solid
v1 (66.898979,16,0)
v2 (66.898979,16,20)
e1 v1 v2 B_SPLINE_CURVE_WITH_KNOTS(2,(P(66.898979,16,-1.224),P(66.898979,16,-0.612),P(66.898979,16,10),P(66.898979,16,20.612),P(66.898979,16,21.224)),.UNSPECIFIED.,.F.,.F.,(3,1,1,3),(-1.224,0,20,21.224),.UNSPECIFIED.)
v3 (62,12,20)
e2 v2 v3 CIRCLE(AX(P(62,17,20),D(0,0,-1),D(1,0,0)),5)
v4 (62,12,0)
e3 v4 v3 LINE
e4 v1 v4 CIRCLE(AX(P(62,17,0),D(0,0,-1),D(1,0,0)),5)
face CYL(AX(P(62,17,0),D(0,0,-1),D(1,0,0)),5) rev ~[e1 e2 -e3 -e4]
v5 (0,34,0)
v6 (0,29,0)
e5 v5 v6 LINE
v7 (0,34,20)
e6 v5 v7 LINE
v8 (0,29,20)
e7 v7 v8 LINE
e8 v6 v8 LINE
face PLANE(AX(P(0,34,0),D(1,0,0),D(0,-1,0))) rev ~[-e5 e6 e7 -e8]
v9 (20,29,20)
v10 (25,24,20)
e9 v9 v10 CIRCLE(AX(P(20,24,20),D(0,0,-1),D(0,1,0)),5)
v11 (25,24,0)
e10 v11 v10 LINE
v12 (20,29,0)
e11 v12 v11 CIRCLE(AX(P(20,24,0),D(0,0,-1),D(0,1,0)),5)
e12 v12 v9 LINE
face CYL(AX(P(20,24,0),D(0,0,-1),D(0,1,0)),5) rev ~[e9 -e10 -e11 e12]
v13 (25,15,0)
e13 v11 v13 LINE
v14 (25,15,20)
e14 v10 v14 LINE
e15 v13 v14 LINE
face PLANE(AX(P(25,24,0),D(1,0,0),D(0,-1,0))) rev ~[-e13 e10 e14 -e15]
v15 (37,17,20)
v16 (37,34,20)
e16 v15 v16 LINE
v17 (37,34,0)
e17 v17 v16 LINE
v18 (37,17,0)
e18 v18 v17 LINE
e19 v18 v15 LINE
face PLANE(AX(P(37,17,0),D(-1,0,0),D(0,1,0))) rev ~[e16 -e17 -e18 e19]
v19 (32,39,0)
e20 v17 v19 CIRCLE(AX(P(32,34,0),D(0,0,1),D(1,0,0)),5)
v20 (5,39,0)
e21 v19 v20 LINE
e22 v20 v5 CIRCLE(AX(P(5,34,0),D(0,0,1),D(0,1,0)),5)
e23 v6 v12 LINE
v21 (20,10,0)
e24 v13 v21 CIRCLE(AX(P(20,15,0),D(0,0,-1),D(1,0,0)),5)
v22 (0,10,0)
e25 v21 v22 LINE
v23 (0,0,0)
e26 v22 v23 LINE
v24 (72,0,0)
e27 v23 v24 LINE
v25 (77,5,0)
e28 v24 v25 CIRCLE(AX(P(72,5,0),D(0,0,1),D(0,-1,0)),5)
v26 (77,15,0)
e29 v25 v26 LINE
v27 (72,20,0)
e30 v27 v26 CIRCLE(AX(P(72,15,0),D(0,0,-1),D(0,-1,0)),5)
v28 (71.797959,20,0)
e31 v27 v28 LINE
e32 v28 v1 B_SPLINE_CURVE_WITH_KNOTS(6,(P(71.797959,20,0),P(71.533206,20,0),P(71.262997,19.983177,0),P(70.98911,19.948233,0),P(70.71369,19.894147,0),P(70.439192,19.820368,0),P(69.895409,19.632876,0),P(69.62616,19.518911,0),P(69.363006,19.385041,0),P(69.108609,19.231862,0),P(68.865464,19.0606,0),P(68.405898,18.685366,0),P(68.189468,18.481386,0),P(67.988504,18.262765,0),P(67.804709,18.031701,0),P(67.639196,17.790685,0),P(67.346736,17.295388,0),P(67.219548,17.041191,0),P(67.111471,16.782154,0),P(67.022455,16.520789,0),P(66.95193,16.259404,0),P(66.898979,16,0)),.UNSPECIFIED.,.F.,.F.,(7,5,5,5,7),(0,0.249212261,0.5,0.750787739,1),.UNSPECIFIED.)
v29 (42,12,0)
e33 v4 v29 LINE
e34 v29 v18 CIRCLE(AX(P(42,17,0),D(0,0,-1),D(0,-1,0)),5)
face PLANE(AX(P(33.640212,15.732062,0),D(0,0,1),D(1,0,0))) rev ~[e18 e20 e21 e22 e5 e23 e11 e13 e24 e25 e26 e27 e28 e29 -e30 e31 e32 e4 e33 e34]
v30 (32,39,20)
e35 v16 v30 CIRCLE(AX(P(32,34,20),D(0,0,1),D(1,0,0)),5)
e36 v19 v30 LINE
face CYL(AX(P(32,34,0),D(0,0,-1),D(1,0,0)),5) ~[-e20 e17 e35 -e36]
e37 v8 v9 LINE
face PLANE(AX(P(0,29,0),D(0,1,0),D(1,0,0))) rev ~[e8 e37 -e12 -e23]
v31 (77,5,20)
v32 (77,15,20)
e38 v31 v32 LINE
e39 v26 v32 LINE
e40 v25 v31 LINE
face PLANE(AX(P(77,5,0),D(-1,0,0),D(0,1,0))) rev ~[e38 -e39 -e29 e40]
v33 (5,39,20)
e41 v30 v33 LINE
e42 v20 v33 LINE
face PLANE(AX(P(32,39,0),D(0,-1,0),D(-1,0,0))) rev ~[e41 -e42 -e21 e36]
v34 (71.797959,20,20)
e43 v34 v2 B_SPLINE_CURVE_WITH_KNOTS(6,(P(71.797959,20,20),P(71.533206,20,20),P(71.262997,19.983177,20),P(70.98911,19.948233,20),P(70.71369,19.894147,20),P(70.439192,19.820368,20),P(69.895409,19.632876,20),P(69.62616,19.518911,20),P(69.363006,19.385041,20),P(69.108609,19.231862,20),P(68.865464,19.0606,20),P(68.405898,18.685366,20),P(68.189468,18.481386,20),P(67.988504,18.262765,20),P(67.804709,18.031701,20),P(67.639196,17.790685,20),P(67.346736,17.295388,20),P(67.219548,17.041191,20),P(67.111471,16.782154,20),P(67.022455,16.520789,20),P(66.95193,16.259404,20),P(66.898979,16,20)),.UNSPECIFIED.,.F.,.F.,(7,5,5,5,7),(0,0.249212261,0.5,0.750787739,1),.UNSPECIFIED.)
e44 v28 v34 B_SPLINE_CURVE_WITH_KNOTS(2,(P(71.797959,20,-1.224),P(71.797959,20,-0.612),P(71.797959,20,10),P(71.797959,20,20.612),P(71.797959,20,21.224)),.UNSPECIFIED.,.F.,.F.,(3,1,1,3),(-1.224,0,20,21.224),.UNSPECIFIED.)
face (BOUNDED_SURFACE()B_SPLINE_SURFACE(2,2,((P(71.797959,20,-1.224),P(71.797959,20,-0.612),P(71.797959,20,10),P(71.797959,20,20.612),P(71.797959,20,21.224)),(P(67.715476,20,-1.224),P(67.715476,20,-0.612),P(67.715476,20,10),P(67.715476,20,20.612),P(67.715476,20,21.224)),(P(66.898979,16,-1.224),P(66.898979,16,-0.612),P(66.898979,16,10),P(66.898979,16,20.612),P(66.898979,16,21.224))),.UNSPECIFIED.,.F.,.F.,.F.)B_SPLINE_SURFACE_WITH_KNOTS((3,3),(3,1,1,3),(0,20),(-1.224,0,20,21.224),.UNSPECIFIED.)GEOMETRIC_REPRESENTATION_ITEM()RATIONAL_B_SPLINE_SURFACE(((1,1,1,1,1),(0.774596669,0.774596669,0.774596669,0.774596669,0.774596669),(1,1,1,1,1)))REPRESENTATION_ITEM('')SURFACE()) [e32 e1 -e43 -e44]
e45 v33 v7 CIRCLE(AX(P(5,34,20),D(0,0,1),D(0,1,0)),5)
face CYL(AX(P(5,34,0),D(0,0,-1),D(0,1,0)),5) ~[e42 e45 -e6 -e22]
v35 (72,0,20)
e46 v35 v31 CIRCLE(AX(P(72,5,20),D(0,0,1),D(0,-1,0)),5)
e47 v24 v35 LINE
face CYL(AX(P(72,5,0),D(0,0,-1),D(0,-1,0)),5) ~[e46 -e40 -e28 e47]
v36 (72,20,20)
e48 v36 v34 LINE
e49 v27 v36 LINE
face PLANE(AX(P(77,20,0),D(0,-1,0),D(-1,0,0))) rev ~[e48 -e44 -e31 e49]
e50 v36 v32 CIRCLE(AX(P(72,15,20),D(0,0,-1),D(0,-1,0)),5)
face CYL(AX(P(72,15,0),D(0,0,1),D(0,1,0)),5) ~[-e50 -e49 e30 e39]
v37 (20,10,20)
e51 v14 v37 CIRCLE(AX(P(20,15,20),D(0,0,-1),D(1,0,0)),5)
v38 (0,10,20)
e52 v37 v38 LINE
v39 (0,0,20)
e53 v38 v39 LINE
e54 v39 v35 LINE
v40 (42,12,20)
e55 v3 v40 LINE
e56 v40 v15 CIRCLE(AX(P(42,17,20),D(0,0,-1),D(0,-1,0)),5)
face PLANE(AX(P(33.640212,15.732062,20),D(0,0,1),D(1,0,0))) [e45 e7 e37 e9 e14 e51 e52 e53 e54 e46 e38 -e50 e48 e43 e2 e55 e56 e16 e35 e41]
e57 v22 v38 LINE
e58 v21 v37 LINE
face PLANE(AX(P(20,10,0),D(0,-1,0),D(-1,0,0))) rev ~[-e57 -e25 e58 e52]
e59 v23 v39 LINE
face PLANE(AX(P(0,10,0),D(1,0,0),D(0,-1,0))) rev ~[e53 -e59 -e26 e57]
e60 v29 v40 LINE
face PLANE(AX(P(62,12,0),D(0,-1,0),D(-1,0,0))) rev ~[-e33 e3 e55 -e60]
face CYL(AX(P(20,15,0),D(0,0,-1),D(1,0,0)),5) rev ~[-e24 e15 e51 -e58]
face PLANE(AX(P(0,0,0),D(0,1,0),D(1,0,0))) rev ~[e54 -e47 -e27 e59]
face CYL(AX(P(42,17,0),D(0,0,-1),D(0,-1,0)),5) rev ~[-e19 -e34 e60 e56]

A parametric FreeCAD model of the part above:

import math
import FreeCAD as App
import Part
import Sketcher

V = App.Vector


def edges_at(feature, points):
    """Names of the edges that pass closest to the given points."""
    edges = feature.Shape.Edges
    near = lambda p: min(range(len(edges)), key=lambda i: edges[i].distToShape(Part.Vertex(*p))[0])
    return sorted({f"Edge{near(p) + 1}" for p in points})

doc = App.newDocument("Part")
body = doc.addObject("PartDesign::Body", "Body")

# Sketch on XZ plane
sketch1 = doc.addObject("Sketcher::SketchObject", "Sketch")
body.addObject(sketch1)
sketch1.AttachmentSupport = (doc.XZ_Plane, [""])
sketch1.MapMode = "FlatFace"
sketch1.addGeometry([
    Part.LineSegment(V(32, 39, 0), V(5, 39, 0)),  # 0
    Part.ArcOfCircle(Part.Circle(V(5, 34, 0), V(0, 0, 1), 5), math.radians(90), math.radians(180)),  # 1
    Part.LineSegment(V(0, 34, 0), V(0, 29, 0)),  # 2
    Part.LineSegment(V(0, 29, 0), V(20, 29, 0)),  # 3
    Part.ArcOfCircle(Part.Circle(V(20, 24, 0), V(0, 0, 1), 5), math.radians(0), math.radians(90)),  # 4
    Part.LineSegment(V(25, 24, 0), V(25, 15, 0)),  # 5
    Part.ArcOfCircle(Part.Circle(V(20, 15, 0), V(0, 0, 1), 5), math.radians(-90), math.radians(0)),  # 6
    Part.LineSegment(V(20, 10, 0), V(0, 10, 0)),  # 7
    Part.LineSegment(V(0, 10, 0), V(0, 0, 0)),  # 8
    Part.LineSegment(V(0, 0, 0), V(72, 0, 0)),  # 9
    Part.ArcOfCircle(Part.Circle(V(72, 5, 0), V(0, 0, 1), 5), math.radians(-90), math.radians(0)),  # 10
    Part.LineSegment(V(77, 5, 0), V(77, 20, 0)),  # 11
    Part.LineSegment(V(77, 20, 0), V(67, 20, 0)),  # 12
    Part.LineSegment(V(67, 20, 0), V(67, 17, 0)),  # 13
    Part.ArcOfCircle(Part.Circle(V(62, 17, 0), V(0, 0, 1), 5), math.radians(-90), math.radians(0)),  # 14
    Part.LineSegment(V(62, 12, 0), V(42, 12, 0)),  # 15
    Part.ArcOfCircle(Part.Circle(V(42, 17, 0), V(0, 0, 1), 5), math.radians(180), math.radians(270)),  # 16
    Part.LineSegment(V(37, 17, 0), V(37, 34, 0)),  # 17
    Part.ArcOfCircle(Part.Circle(V(32, 34, 0), V(0, 0, 1), 5), math.radians(0), math.radians(90)),  # 18
], False)
sketch1.addConstraint([
    Sketcher.Constraint("Tangent", 0, 2, 1, 1),
    Sketcher.Constraint("Tangent", 1, 2, 2, 1),
    Sketcher.Constraint("Coincident", 2, 2, 3, 1),
    Sketcher.Constraint("Tangent", 3, 2, 4, 2),
    Sketcher.Constraint("Tangent", 4, 1, 5, 1),
    Sketcher.Constraint("Tangent", 5, 2, 6, 2),
    Sketcher.Constraint("Tangent", 6, 1, 7, 1),
    Sketcher.Constraint("Coincident", 7, 2, 8, 1),
    Sketcher.Constraint("Coincident", 8, 2, 9, 1),
    Sketcher.Constraint("Tangent", 9, 2, 10, 1),
    Sketcher.Constraint("Tangent", 10, 2, 11, 1),
    Sketcher.Constraint("Coincident", 11, 2, 12, 1),
    Sketcher.Constraint("Coincident", 12, 2, 13, 1),
    Sketcher.Constraint("Tangent", 13, 2, 14, 2),
    Sketcher.Constraint("Tangent", 14, 1, 15, 1),
    Sketcher.Constraint("Tangent", 15, 2, 16, 2),
    Sketcher.Constraint("Tangent", 16, 1, 17, 1),
    Sketcher.Constraint("Tangent", 17, 2, 18, 1),
    Sketcher.Constraint("Tangent", 18, 2, 0, 1),
    Sketcher.Constraint("Horizontal", 0),
    Sketcher.Constraint("Vertical", 2),
    Sketcher.Constraint("Horizontal", 3),
    Sketcher.Constraint("Vertical", 5),
    Sketcher.Constraint("Horizontal", 7),
    Sketcher.Constraint("Vertical", 8),
    Sketcher.Constraint("Horizontal", 9),
    Sketcher.Constraint("Vertical", 11),
    Sketcher.Constraint("Horizontal", 12),
    Sketcher.Constraint("Vertical", 13),
    Sketcher.Constraint("Horizontal", 15),
    Sketcher.Constraint("Vertical", 17),
    Sketcher.Constraint("Coincident", 8, 2, -1, 1),
    Sketcher.Constraint("Equal", 1, 4),
    Sketcher.Constraint("Equal", 4, 6),
    Sketcher.Constraint("Equal", 6, 10),
    Sketcher.Constraint("Equal", 10, 14),
    Sketcher.Constraint("Equal", 14, 16),
    Sketcher.Constraint("Equal", 16, 18),
    Sketcher.Constraint("PointOnObject", 1, 2, -2),
    Sketcher.Constraint("Equal", 7, 15),
    Sketcher.Constraint("Equal", 12, 8),
    Sketcher.Constraint("Radius", 1, 5.0),
    Sketcher.Constraint("DistanceX", 0, 2, 0, 1, 27.0),
    Sketcher.Constraint("DistanceX", 3, 1, 3, 2, 20.0),
    Sketcher.Constraint("DistanceX", 9, 1, 9, 2, 72.0),
    Sketcher.Constraint("DistanceY", 2, 2, 2, 1, 5.0),
    Sketcher.Constraint("DistanceY", 5, 2, 5, 1, 9.0),
    Sketcher.Constraint("DistanceY", 11, 1, 11, 2, 15.0),
    Sketcher.Constraint("DistanceY", 13, 2, 13, 1, 3.0),
])
pad1 = doc.addObject("PartDesign::Pad", "Pad")
body.addObject(pad1)
pad1.Profile = sketch1
pad1.Length = 20
doc.recompute()

fillet = doc.addObject("PartDesign::Fillet", "Fillet")
body.addObject(fillet)
fillet.Base = (pad1, edges_at(pad1, [(67, -10, 20)]))
fillet.Radius = 5
doc.recompute()

fillet2 = doc.addObject("PartDesign::Fillet", "Fillet001")
body.addObject(fillet2)
fillet2.Base = (fillet, edges_at(fillet, [(77, -10, 20)]))
fillet2.Radius = 5
body2 = doc.addObject("PartDesign::Body", "Body001")
doc.recompute()

body.Placement = App.Placement(V(0, 0, 0), App.Rotation(V(-1, 0, 0), 90))
boolean = doc.addObject("PartDesign::Boolean", "Boolean")
body2.addObject(boolean)
boolean.Type = "Fuse"
boolean.addObjects([body])

doc.recompute()
